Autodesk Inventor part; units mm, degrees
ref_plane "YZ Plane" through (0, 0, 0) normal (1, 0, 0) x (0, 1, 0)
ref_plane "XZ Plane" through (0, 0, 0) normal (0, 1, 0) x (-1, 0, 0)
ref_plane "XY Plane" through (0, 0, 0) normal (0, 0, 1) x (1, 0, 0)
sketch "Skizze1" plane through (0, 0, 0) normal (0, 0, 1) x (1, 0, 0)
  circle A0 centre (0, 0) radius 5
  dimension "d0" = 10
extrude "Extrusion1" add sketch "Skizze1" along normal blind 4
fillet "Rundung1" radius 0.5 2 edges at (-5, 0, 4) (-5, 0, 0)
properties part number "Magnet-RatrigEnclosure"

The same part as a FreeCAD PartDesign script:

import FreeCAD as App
import Part
import Sketcher
from FreeCAD import Vector
Q = App.Units.Quantity


def edges_at(feature, points):
    """Names of the edges that pass closest to the given points."""
    edges = feature.Shape.Edges
    near = lambda p: min(range(len(edges)), key=lambda i: edges[i].distToShape(Part.Vertex(*p))[0])
    return sorted({f"Edge{near(p) + 1}" for p in points})

doc = App.newDocument("Part")
body = doc.addObject("PartDesign::Body", "Body")

# Sketch on XY plane
sketch1 = body.newObject("Sketcher::SketchObject", "Sketch")
sketch1.AttachmentSupport = (doc.getObject("XY_Plane"), [""])
sketch1.MapMode = "FlatFace"
sketch1.addGeometry(Part.Circle(Vector(0, 0, 0), Vector(0, 0, 1), 5), False)
sketch1.addConstraint(Sketcher.Constraint("Coincident", 0, 3, -1, 1))
sketch1.addConstraint(Sketcher.Constraint("Diameter", 0, Q("10 mm")))
pad1 = body.newObject("PartDesign::Pad", "Pad")
pad1.Profile = sketch1
pad1.Length = 4
doc.recompute()

fillet = body.newObject("PartDesign::Fillet", "Fillet")
fillet.Base = (pad1, edges_at(pad1, [(-5, 0, 4), (-5, 0, 0)]))
fillet.Radius = 0.5

doc.recompute()
